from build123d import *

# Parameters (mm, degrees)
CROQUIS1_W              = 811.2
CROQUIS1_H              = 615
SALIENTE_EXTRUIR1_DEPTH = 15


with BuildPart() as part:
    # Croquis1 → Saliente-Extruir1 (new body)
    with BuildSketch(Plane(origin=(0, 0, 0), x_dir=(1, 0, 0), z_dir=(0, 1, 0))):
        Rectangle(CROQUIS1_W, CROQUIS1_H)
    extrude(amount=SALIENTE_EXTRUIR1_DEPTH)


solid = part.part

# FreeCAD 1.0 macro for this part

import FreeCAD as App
import Part
import Sketcher

V = App.Vector
Q = App.Units.Quantity


def add_polygon(sketch, points):
    """Adds a closed chain of lines whose ends are joined by coincident constraints."""
    first, n = sketch.GeometryCount, len(points)
    for a, b in zip(points, points[1:] + points[:1]):
        sketch.addGeometry(Part.LineSegment(App.Vector(*a, 0), App.Vector(*b, 0)), False)
    for i in range(n):
        sketch.addConstraint(Sketcher.Constraint("Coincident", first + i, 2, first + (i + 1) % n, 1))

doc = App.newDocument("Part")
body = doc.addObject("PartDesign::Body", "Body")

# Sketch on XZ plane
sketch1 = body.newObject("Sketcher::SketchObject", "Sketch")
sketch1.AttachmentSupport = (doc.getObject("XZ_Plane"), [""])
sketch1.MapMode = "FlatFace"
add_polygon(sketch1, [(-405.6, -307.5), (-405.6, 307.5), (405.6, 307.5), (405.6, -307.5)])  # lines 0-3
sketch1.addConstraint(Sketcher.Constraint("Vertical", 0))
sketch1.addConstraint(Sketcher.Constraint("Horizontal", 1))
sketch1.addConstraint(Sketcher.Constraint("Vertical", 2))
sketch1.addConstraint(Sketcher.Constraint("Horizontal", 3))
sketch1.addConstraint(Sketcher.Constraint("Symmetric", 0, 2, 2, 2, -1, 1))
sketch1.addConstraint(Sketcher.Constraint("DistanceY", 0, 1, 0, 2, Q("615 mm")))
sketch1.addConstraint(Sketcher.Constraint("DistanceX", 1, 1, 1, 2, Q("811.2 mm")))
pad1 = body.newObject("PartDesign::Pad", "Pad")
pad1.Profile = sketch1
pad1.Length = 15
pad1.Reversed = True

doc.recompute()
